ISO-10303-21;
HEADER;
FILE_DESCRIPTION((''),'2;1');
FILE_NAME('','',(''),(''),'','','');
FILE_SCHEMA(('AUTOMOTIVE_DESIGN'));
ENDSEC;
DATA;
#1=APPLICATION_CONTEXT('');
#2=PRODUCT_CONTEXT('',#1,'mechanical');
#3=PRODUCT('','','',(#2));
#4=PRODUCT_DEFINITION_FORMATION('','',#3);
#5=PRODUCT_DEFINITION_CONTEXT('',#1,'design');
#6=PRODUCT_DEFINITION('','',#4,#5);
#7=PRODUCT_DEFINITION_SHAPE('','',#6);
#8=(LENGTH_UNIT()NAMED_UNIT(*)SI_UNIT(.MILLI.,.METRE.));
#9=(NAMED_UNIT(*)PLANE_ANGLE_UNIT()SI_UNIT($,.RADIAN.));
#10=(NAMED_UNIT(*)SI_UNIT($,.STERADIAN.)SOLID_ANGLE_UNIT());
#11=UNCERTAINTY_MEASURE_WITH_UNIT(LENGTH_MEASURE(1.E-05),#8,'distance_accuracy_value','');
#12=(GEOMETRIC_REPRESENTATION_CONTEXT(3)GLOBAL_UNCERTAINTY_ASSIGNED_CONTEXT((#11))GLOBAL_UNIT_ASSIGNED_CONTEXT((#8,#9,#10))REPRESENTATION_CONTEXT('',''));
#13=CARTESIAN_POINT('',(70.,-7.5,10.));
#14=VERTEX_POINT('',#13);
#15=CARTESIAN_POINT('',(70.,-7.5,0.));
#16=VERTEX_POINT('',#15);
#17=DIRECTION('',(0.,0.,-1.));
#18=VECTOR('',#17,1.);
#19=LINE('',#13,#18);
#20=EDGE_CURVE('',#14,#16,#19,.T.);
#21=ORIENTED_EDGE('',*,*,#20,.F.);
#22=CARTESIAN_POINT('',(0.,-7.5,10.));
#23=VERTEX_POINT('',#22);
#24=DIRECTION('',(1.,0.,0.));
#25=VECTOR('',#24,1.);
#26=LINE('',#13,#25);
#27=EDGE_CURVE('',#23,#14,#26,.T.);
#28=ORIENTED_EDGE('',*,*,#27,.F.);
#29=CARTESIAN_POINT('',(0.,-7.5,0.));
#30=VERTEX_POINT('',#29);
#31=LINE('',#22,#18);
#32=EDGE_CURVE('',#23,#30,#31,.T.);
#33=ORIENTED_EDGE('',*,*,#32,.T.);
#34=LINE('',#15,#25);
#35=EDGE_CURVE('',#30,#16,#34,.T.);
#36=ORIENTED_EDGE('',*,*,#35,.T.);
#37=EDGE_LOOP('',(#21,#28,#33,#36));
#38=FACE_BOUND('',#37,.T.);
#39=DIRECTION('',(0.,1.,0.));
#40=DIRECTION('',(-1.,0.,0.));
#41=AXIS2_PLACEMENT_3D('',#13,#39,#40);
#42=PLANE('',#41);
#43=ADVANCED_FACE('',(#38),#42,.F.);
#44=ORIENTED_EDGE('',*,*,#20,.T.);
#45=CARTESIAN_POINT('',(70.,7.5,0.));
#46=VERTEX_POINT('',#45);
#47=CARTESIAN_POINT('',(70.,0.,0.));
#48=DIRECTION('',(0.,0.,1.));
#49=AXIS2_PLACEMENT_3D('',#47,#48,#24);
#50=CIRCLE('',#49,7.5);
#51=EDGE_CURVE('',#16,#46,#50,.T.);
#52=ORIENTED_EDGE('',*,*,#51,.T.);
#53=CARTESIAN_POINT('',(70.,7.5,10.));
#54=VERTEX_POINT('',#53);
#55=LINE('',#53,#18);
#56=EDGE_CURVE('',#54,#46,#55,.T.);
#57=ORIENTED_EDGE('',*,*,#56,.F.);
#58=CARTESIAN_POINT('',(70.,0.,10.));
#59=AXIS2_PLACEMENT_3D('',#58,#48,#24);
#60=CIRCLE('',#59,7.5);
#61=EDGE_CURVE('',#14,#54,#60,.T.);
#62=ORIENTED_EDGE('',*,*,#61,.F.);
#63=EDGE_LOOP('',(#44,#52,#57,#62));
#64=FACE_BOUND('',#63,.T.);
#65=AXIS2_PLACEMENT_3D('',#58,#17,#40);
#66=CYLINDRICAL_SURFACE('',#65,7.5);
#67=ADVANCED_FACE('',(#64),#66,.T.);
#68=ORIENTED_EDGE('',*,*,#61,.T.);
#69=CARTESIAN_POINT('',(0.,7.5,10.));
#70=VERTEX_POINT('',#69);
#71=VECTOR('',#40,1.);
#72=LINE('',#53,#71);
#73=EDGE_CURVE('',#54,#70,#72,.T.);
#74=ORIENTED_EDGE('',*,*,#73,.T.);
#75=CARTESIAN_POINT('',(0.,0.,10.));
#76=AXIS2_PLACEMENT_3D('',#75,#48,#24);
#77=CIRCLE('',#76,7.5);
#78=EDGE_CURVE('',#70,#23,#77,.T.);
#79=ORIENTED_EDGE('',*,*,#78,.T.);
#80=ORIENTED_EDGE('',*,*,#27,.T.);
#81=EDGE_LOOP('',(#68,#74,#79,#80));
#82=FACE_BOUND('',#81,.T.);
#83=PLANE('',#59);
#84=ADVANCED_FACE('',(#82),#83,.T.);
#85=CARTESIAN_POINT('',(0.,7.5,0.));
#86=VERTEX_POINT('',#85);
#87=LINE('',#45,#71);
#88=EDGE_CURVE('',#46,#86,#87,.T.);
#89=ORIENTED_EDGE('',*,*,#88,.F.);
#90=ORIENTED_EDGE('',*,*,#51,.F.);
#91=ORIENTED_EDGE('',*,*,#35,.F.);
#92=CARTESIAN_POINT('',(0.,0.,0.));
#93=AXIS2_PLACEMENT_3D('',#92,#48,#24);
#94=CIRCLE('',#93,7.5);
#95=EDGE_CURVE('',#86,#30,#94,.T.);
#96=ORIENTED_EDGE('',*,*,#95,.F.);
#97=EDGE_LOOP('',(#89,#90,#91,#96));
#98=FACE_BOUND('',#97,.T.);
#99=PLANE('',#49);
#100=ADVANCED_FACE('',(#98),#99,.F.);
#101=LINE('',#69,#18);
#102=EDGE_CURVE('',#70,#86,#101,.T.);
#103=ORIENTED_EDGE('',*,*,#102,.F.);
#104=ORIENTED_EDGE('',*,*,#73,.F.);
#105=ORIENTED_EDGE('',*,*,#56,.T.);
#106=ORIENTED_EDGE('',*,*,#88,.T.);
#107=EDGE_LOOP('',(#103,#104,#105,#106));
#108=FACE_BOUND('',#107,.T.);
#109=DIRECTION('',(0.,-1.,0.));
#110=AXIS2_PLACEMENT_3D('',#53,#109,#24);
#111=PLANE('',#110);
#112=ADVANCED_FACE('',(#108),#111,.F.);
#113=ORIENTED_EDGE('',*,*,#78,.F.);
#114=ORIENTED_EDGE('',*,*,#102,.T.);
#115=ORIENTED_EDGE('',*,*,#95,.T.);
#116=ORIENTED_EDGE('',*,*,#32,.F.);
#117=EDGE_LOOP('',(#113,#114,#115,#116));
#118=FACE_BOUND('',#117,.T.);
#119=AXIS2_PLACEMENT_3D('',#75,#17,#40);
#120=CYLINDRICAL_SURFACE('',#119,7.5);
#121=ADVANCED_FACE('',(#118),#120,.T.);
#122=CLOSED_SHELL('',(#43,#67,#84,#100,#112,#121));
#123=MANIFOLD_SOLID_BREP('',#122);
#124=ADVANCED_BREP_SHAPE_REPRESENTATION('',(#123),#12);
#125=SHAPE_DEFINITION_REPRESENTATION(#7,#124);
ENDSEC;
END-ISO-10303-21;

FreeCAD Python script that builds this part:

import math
import FreeCAD as App
import Part
import Sketcher
from FreeCAD import Vector
Q = App.Units.Quantity

doc = App.newDocument("Part")
body = doc.addObject("PartDesign::Body", "Body")

# Sketch on XY plane
sketch1 = body.newObject("Sketcher::SketchObject", "Sketch")
sketch1.AttachmentSupport = (doc.getObject("XY_Plane"), [""])
sketch1.MapMode = "FlatFace"
sketch1.addGeometry([
    Part.LineSegment(Vector(0, -8, 0), Vector(70, -8, 0)),
    Part.ArcOfCircle(Part.Circle(Vector(70, 0, 0), Vector(0, 0, 1), 8), math.radians(-90), math.radians(90)),
    Part.LineSegment(Vector(70, 8, 0), Vector(0, 8, 0)),
    Part.ArcOfCircle(Part.Circle(Vector(0, 0, 0), Vector(0, 0, 1), 8), math.radians(90), math.radians(270)),
], False)
sketch1.addConstraint([
    Sketcher.Constraint("Tangent", 0, 2, 1, 1),
    Sketcher.Constraint("Tangent", 1, 2, 2, 1),
    Sketcher.Constraint("Tangent", 2, 2, 3, 1),
    Sketcher.Constraint("Tangent", 3, 2, 0, 1),
    Sketcher.Constraint("Horizontal", 0),
    Sketcher.Constraint("Horizontal", 2),
    Sketcher.Constraint("Coincident", 3, 3, -1, 1),
    Sketcher.Constraint("Radius", 1, Q("7.5 mm")),
    Sketcher.Constraint("DistanceX", 0, 1, 0, 2, Q("70 mm")),
])
pad1 = body.newObject("PartDesign::Pad", "Pad")
pad1.Profile = sketch1
pad1.Length = 10

doc.recompute()
